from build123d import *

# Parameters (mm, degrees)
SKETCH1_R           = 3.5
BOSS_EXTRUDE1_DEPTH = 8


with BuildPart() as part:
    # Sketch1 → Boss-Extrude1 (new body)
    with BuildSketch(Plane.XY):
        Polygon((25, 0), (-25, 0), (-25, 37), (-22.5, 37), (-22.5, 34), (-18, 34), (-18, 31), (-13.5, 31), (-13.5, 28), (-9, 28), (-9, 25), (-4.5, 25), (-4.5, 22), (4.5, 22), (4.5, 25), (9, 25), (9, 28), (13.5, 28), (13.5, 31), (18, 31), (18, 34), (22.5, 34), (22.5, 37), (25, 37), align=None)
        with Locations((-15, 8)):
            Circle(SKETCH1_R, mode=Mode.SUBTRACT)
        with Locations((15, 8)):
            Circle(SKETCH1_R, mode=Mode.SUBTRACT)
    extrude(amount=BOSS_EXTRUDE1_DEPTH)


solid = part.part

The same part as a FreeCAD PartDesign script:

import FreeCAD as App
import Part
import Sketcher
Q = App.Units.Quantity


def add_polygon(sketch, points):
    """Adds a closed chain of lines whose ends are joined by coincident constraints."""
    first, n = sketch.GeometryCount, len(points)
    for a, b in zip(points, points[1:] + points[:1]):
        sketch.addGeometry(Part.LineSegment(App.Vector(*a, 0), App.Vector(*b, 0)), False)
    for i in range(n):
        sketch.addConstraint(Sketcher.Constraint("Coincident", first + i, 2, first + (i + 1) % n, 1))

doc = App.newDocument("Part")
body = doc.addObject("PartDesign::Body", "Body")

# Sketch on XY plane
sketch1 = body.newObject("Sketcher::SketchObject", "Sketch")
sketch1.AttachmentSupport = (doc.getObject("XY_Plane"), [""])
sketch1.MapMode = "FlatFace"
add_polygon(sketch1, [(-25, 0), (25, 0), (25, 37), (22.5, 37), (22.5, 34), (18, 34), (18, 31), (13.5, 31), (13.5, 28), (9, 28), (9, 25), (4.5, 25), (4.5, 22), (-4.5, 22), (-4.5, 25), (-9, 25), (-9, 28), (-13.5, 28), (-13.5, 31), (-18, 31), (-18, 34), (-22.5, 34), (-22.5, 37), (-25, 37)])  # lines 0-23
sketch1.addGeometry(Part.Circle(App.Vector(15, 8, 0), App.Vector(0, 0, 1), 3.5), False)  # 24
sketch1.addGeometry(Part.Circle(App.Vector(-15, 8, 0), App.Vector(0, 0, 1), 3.5), False)  # 25
sketch1.addConstraint([
    Sketcher.Constraint("Horizontal", 0),
    Sketcher.Constraint("Vertical", 1),
    Sketcher.Constraint("Horizontal", 2),
    Sketcher.Constraint("Vertical", 3),
    Sketcher.Constraint("Horizontal", 4),
    Sketcher.Constraint("Vertical", 5),
    Sketcher.Constraint("Horizontal", 6),
    Sketcher.Constraint("Vertical", 7),
    Sketcher.Constraint("Horizontal", 8),
    Sketcher.Constraint("Vertical", 9),
    Sketcher.Constraint("Horizontal", 10),
    Sketcher.Constraint("Vertical", 11),
    Sketcher.Constraint("Horizontal", 12),
    Sketcher.Constraint("Vertical", 13),
    Sketcher.Constraint("Horizontal", 14),
    Sketcher.Constraint("Vertical", 15),
    Sketcher.Constraint("Horizontal", 16),
    Sketcher.Constraint("Vertical", 17),
    Sketcher.Constraint("Horizontal", 18),
    Sketcher.Constraint("Vertical", 19),
    Sketcher.Constraint("Horizontal", 20),
    Sketcher.Constraint("Vertical", 21),
    Sketcher.Constraint("Horizontal", 22),
    Sketcher.Constraint("Vertical", 23),
    Sketcher.Constraint("Equal", 24, 25),
    Sketcher.Constraint("Symmetric", 0, 2, 23, 2, -1, 1),
    Sketcher.Constraint("Symmetric", 24, 3, 25, 3, -2),
    Sketcher.Constraint("Symmetric", 10, 2, 13, 2, -2),
    Sketcher.Constraint("Symmetric", 8, 2, 15, 2, -2),
    Sketcher.Constraint("Symmetric", 6, 2, 17, 2, -2),
    Sketcher.Constraint("Symmetric", 4, 2, 19, 2, -2),
    Sketcher.Constraint("Symmetric", 2, 2, 21, 2, -2),
    Sketcher.Constraint("Equal", 4, 6),
    Sketcher.Constraint("Equal", 6, 8),
    Sketcher.Constraint("Equal", 8, 10),
    Sketcher.Constraint("Equal", 3, 5),
    Sketcher.Constraint("Equal", 5, 7),
    Sketcher.Constraint("Equal", 7, 9),
    Sketcher.Constraint("Equal", 9, 11),
    Sketcher.Constraint("Diameter", 24, Q("7 mm")),
    Sketcher.Constraint("DistanceX", 0, 1, 0, 2, Q("50 mm")),
    Sketcher.Constraint("DistanceX", 12, 2, 12, 1, Q("9 mm")),
    Sketcher.Constraint("DistanceY", 1, 1, 1, 2, Q("37 mm")),
    Sketcher.Constraint("DistanceY", 3, 2, 3, 1, Q("3 mm")),
    Sketcher.Constraint("DistanceX", 2, 2, 2, 1, Q("2.5 mm")),
    Sketcher.Constraint("DistanceX", -1, 1, 24, 3, Q("15 mm")),
    Sketcher.Constraint("DistanceY", -1, 1, 24, 3, Q("8 mm")),
])
pad1 = body.newObject("PartDesign::Pad", "Pad")
pad1.Profile = sketch1
pad1.Length = 8

doc.recompute()
